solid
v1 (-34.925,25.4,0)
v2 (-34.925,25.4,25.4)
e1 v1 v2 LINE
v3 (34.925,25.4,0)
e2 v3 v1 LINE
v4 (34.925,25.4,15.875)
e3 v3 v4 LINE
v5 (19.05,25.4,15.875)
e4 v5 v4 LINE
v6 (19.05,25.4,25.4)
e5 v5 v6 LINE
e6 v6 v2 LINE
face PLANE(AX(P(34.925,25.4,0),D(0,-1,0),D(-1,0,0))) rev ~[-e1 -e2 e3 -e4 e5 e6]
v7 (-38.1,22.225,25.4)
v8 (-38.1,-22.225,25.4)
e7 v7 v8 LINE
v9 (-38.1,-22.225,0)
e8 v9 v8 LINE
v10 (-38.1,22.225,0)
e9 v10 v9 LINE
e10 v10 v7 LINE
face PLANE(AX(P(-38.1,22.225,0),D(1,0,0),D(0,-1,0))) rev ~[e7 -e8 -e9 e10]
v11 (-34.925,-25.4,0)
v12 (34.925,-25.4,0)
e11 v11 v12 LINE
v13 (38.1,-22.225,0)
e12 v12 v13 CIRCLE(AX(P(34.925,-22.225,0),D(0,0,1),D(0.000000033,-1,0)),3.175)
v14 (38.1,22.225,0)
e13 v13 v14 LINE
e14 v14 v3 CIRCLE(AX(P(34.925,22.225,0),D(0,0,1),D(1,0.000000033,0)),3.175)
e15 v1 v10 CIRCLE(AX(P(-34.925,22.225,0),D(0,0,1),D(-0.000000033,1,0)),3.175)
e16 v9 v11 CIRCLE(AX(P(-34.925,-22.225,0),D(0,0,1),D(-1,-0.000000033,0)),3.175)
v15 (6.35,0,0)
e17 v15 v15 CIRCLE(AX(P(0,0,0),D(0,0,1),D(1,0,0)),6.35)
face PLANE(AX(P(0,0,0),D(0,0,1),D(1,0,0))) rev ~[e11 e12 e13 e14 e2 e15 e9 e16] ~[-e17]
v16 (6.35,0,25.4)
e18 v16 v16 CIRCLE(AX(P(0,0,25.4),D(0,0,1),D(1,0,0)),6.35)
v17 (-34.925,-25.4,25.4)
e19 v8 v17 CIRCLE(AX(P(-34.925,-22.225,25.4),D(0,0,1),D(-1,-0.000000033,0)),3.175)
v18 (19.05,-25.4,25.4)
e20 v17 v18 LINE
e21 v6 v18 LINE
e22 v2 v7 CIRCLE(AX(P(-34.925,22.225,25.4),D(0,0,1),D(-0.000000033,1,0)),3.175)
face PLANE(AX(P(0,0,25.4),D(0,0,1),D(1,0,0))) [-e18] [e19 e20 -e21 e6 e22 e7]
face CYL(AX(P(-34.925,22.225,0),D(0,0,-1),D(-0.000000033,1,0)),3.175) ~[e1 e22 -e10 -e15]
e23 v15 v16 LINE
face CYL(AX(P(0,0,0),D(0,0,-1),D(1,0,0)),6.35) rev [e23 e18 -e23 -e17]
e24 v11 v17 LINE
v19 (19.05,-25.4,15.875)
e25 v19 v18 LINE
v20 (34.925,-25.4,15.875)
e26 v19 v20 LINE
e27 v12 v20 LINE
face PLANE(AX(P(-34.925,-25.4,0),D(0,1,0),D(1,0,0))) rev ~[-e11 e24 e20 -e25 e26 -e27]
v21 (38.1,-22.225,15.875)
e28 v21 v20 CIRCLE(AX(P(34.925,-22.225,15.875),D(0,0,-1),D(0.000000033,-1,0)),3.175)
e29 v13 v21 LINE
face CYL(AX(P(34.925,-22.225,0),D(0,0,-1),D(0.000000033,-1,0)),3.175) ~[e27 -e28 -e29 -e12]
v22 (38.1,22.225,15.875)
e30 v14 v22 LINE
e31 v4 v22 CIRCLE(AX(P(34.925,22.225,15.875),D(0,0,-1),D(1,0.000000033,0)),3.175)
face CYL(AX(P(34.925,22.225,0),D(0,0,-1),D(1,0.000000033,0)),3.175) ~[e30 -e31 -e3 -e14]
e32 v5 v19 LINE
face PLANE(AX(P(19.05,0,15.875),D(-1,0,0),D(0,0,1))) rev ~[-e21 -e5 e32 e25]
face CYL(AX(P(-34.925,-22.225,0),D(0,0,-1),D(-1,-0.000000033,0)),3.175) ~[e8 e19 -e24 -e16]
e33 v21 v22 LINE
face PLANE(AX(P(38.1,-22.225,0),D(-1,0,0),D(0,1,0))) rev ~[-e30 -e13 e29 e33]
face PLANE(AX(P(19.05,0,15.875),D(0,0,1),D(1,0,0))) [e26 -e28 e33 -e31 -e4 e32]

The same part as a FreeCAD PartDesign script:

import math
import FreeCAD as App
import Part
import Sketcher
from FreeCAD import Vector
Q = App.Units.Quantity

doc = App.newDocument("Part")
body = doc.addObject("PartDesign::Body", "Body")

# Sketch on XY plane
sketch1 = body.newObject("Sketcher::SketchObject", "Sketch")
sketch1.AttachmentSupport = (doc.getObject("XY_Plane"), [""])
sketch1.MapMode = "FlatFace"
sketch1.addGeometry([
    Part.LineSegment(Vector(-34.925, -25.4, 0), Vector(34.925, -25.4, 0)),  # 0
    Part.ArcOfCircle(Part.Circle(Vector(34.925, -22.225, 0), Vector(0, 0, 1), 3.175), math.radians(-89.999998), math.radians(-0.000002)),  # 1
    Part.LineSegment(Vector(38.1, -22.225, 0), Vector(38.1, 22.225, 0)),  # 2
    Part.ArcOfCircle(Part.Circle(Vector(34.925, 22.225, 0), Vector(0, 0, 1), 3.175), math.radians(0.000002), math.radians(89.999998)),  # 3
    Part.LineSegment(Vector(34.925, 25.4, 0), Vector(-34.925, 25.4, 0)),  # 4
    Part.ArcOfCircle(Part.Circle(Vector(-34.925, 22.225, 0), Vector(0, 0, 1), 3.175), math.radians(90.000002), math.radians(179.999998)),  # 5
    Part.LineSegment(Vector(-38.1, 22.225, 0), Vector(-38.1, -22.225, 0)),  # 6
    Part.ArcOfCircle(Part.Circle(Vector(-34.925, -22.225, 0), Vector(0, 0, 1), 3.175), math.radians(-179.999998), math.radians(-90.000002)),  # 7
    Part.Circle(Vector(0, 0, 0), Vector(0, 0, 1), 6.35),  # 8
], False)
sketch1.addConstraint([
    Sketcher.Constraint("Tangent", 0, 2, 1, 1),
    Sketcher.Constraint("Tangent", 1, 2, 2, 1),
    Sketcher.Constraint("Tangent", 2, 2, 3, 1),
    Sketcher.Constraint("Tangent", 3, 2, 4, 1),
    Sketcher.Constraint("Tangent", 4, 2, 5, 1),
    Sketcher.Constraint("Tangent", 5, 2, 6, 1),
    Sketcher.Constraint("Tangent", 6, 2, 7, 1),
    Sketcher.Constraint("Tangent", 7, 2, 0, 1),
    Sketcher.Constraint("Horizontal", 0),
    Sketcher.Constraint("Vertical", 2),
    Sketcher.Constraint("Horizontal", 4),
    Sketcher.Constraint("Vertical", 6),
    Sketcher.Constraint("Coincident", 8, 3, -1, 1),
    Sketcher.Constraint("Equal", 1, 3),
    Sketcher.Constraint("Equal", 3, 5),
    Sketcher.Constraint("Equal", 5, 7),
    Sketcher.Constraint("Symmetric", 1, 3, 5, 3, -1, 1),
    Sketcher.Constraint("Diameter", 8, Q("0.5 in")),
    Sketcher.Constraint("DistanceY", 0, 2, -1, 1, Q("1 in")),
    Sketcher.Constraint("Radius", 1, Q("0.125 in")),
    Sketcher.Constraint("DistanceX", 0, 1, 0, 2, Q("2.75 in")),
])
pad1 = body.newObject("PartDesign::Pad", "Pad")
pad1.Profile = sketch1
pad1.Length = Q("1 in")

# Sketch on XZ plane
sketch2 = body.newObject("Sketcher::SketchObject", "Sketch001")
sketch2.AttachmentSupport = (doc.getObject("XZ_Plane"), [""])
sketch2.MapMode = "FlatFace"
sketch2.addGeometry([
    Part.LineSegment(Vector(19.05, 25.4, 0), Vector(19.05, 15.875, 0)),
    Part.LineSegment(Vector(19.05, 15.875, 0), Vector(38.1, 15.875, 0)),
    Part.LineSegment(Vector(38.1, 15.875, 0), Vector(38.1, 25.4, 0)),
    Part.LineSegment(Vector(38.1, 25.4, 0), Vector(19.05, 25.4, 0)),
], False)
sketch2.addConstraint([
    Sketcher.Constraint("Coincident", 0, 2, 1, 1),
    Sketcher.Constraint("Coincident", 1, 2, 2, 1),
    Sketcher.Constraint("Coincident", 2, 2, 3, 1),
    Sketcher.Constraint("Coincident", 3, 2, 0, 1),
    Sketcher.Constraint("Vertical", 0),
    Sketcher.Constraint("Horizontal", 1),
    Sketcher.Constraint("Vertical", 2),
    Sketcher.Constraint("Horizontal", 3),
    Sketcher.Constraint("DistanceY", -1, 1, 2, 2, Q("1 in")),
    Sketcher.Constraint("DistanceX", 1, 1, 1, 2, Q("0.75 in")),
    Sketcher.Constraint("DistanceX", -1, 1, 1, 2, Q("1.5 in")),
    Sketcher.Constraint("DistanceY", 0, 2, 0, 1, Q("0.375 in")),
])
pocket1 = body.newObject("PartDesign::Pocket", "Pocket")
pocket1.Profile = sketch2
pocket1.Type = "ThroughAll"
pocket1.Midplane = True

doc.recompute()
